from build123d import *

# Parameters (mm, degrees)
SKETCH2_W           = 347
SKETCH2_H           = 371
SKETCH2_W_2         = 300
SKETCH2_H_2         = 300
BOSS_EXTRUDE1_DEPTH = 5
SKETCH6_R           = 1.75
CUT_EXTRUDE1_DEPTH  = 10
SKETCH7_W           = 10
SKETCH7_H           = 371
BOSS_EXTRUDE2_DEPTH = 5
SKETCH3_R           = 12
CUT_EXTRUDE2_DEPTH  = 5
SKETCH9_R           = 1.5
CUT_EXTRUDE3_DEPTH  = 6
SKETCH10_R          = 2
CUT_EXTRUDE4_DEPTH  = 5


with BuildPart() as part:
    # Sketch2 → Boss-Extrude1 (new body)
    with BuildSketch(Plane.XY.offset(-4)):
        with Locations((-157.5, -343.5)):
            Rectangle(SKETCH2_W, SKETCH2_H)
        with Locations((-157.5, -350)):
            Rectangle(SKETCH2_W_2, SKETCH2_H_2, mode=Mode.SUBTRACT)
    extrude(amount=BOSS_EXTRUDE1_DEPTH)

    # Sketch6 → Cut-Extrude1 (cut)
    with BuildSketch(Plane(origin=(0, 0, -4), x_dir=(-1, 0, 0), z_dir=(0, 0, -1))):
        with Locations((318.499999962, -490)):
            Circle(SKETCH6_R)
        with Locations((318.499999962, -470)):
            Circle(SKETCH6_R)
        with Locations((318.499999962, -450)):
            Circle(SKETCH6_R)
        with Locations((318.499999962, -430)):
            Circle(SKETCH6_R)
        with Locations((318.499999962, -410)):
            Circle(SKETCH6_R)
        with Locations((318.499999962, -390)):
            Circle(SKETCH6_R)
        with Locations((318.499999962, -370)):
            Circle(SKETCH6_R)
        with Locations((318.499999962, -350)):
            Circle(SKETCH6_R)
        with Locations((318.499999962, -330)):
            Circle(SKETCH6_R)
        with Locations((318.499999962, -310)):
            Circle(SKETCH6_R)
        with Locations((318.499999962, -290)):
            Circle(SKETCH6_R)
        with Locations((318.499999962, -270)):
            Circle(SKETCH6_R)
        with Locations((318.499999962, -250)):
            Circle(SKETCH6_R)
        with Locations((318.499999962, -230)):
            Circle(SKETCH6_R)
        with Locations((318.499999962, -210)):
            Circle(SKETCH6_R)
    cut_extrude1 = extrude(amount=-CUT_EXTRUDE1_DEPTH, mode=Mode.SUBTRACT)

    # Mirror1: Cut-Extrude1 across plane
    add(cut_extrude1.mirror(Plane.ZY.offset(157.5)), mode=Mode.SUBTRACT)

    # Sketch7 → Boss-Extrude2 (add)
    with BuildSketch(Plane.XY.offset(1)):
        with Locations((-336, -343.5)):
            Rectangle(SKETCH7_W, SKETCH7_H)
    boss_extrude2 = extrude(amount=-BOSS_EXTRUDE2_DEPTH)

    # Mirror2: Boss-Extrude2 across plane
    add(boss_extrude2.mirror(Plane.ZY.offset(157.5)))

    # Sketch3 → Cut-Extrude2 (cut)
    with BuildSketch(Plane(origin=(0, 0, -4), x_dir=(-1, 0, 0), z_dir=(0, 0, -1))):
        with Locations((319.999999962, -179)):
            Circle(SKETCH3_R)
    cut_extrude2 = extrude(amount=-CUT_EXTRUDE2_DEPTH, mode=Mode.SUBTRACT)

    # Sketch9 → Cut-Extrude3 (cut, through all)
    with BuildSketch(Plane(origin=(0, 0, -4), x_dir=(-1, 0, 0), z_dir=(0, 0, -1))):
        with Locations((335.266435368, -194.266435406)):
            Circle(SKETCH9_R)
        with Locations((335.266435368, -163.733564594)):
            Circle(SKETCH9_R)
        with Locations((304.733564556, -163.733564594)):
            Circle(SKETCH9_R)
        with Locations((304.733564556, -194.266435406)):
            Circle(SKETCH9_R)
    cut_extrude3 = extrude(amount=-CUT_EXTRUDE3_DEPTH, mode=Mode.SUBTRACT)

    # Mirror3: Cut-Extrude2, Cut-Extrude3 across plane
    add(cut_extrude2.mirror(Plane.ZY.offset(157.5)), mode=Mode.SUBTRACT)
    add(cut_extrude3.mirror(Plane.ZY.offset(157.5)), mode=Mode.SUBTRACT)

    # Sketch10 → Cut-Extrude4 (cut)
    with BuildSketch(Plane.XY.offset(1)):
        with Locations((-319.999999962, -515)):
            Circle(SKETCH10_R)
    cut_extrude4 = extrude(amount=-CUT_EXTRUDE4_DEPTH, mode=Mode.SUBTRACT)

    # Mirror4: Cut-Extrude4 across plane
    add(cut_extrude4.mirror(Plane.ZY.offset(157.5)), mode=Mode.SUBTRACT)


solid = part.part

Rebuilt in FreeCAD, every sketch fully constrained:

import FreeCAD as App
import Part
import Sketcher

doc = App.newDocument("Part")
body = doc.addObject("PartDesign::Body", "Body")

sketch1 = doc.addObject("Sketcher::SketchObject", "Sketch")
body.addObject(sketch1)
sketch1.AttachmentSupport = (doc.XY_Plane, [""])
sketch1.MapMode = "FlatFace"
sketch1.AttachmentOffset = App.Placement(App.Vector(0, 0, -4), App.Rotation())
sketch1.addGeometry([
    Part.LineSegment(App.Vector(-331, -158, 0), App.Vector(-331, -529, 0)),
    Part.LineSegment(App.Vector(-331, -529, 0), App.Vector(16, -529, 0)),
    Part.LineSegment(App.Vector(16, -529, 0), App.Vector(16, -158, 0)),
    Part.LineSegment(App.Vector(16, -158, 0), App.Vector(-331, -158, 0)),
    Part.LineSegment(App.Vector(-7.5, -500, 0), App.Vector(-307.5, -500, 0)),
    Part.LineSegment(App.Vector(-307.5, -500, 0), App.Vector(-307.5, -200, 0)),
    Part.LineSegment(App.Vector(-307.5, -200, 0), App.Vector(-7.5, -200, 0)),
    Part.LineSegment(App.Vector(-7.5, -200, 0), App.Vector(-7.5, -500, 0)),
], False)
sketch1.addConstraint([
    Sketcher.Constraint("Coincident", 0, 2, 1, 1),
    Sketcher.Constraint("Coincident", 1, 2, 2, 1),
    Sketcher.Constraint("Coincident", 2, 2, 3, 1),
    Sketcher.Constraint("Coincident", 3, 2, 0, 1),
    Sketcher.Constraint("Coincident", 4, 2, 5, 1),
    Sketcher.Constraint("Coincident", 5, 2, 6, 1),
    Sketcher.Constraint("Coincident", 6, 2, 7, 1),
    Sketcher.Constraint("Coincident", 7, 2, 4, 1),
    Sketcher.Constraint("Vertical", 0),
    Sketcher.Constraint("Horizontal", 1),
    Sketcher.Constraint("Vertical", 2),
    Sketcher.Constraint("Horizontal", 3),
    Sketcher.Constraint("Horizontal", 4),
    Sketcher.Constraint("Vertical", 5),
    Sketcher.Constraint("Horizontal", 6),
    Sketcher.Constraint("Vertical", 7),
    Sketcher.Constraint("Equal", 6, 5),
    Sketcher.Constraint("DistanceX", 1, 1, 1, 2, 347.0),
    Sketcher.Constraint("DistanceX", 4, 2, 4, 1, 300.0),
    Sketcher.Constraint("DistanceY", 0, 2, 0, 1, 371.0),
    Sketcher.Constraint("DistanceX", 0, 2, -1, 1, 331.0),
    Sketcher.Constraint("DistanceY", 0, 2, -1, 1, 529.0),
    Sketcher.Constraint("DistanceY", 4, 2, -1, 1, 500.0),
    Sketcher.Constraint("DistanceX", 4, 2, -1, 1, 307.5),
])
pad1 = doc.addObject("PartDesign::Pad", "Pad")
body.addObject(pad1)
pad1.Profile = sketch1
pad1.Length = 5

sketch2 = doc.addObject("Sketcher::SketchObject", "Sketch001")
body.addObject(sketch2)
sketch2.AttachmentSupport = (doc.XY_Plane, [""])
sketch2.MapMode = "FlatFace"
sketch2.AttachmentOffset = App.Placement(App.Vector(0, 0, -4), App.Rotation())
sketch2.addGeometry([
    Part.Circle(App.Vector(-318.5, -490, 0), App.Vector(0, 0, 1), 1.75),
    Part.Circle(App.Vector(-318.5, -470, 0), App.Vector(0, 0, 1), 1.75),
    Part.Circle(App.Vector(-318.5, -450, 0), App.Vector(0, 0, 1), 1.75),
    Part.Circle(App.Vector(-318.5, -430, 0), App.Vector(0, 0, 1), 1.75),
    Part.Circle(App.Vector(-318.5, -410, 0), App.Vector(0, 0, 1), 1.75),
    Part.Circle(App.Vector(-318.5, -390, 0), App.Vector(0, 0, 1), 1.75),
    Part.Circle(App.Vector(-318.5, -370, 0), App.Vector(0, 0, 1), 1.75),
    Part.Circle(App.Vector(-318.5, -350, 0), App.Vector(0, 0, 1), 1.75),
    Part.Circle(App.Vector(-318.5, -330, 0), App.Vector(0, 0, 1), 1.75),
    Part.Circle(App.Vector(-318.5, -310, 0), App.Vector(0, 0, 1), 1.75),
    Part.Circle(App.Vector(-318.5, -290, 0), App.Vector(0, 0, 1), 1.75),
    Part.Circle(App.Vector(-318.5, -270, 0), App.Vector(0, 0, 1), 1.75),
    Part.Circle(App.Vector(-318.5, -250, 0), App.Vector(0, 0, 1), 1.75),
    Part.Circle(App.Vector(-318.5, -230, 0), App.Vector(0, 0, 1), 1.75),
    Part.Circle(App.Vector(-318.5, -210, 0), App.Vector(0, 0, 1), 1.75),
], False)
sketch2.addConstraint([
    Sketcher.Constraint("Equal", 0, 1),
    Sketcher.Constraint("Equal", 1, 2),
    Sketcher.Constraint("Equal", 2, 3),
    Sketcher.Constraint("Equal", 3, 4),
    Sketcher.Constraint("Equal", 4, 5),
    Sketcher.Constraint("Equal", 5, 6),
    Sketcher.Constraint("Equal", 6, 7),
    Sketcher.Constraint("Equal", 7, 8),
    Sketcher.Constraint("Equal", 8, 9),
    Sketcher.Constraint("Equal", 9, 10),
    Sketcher.Constraint("Equal", 10, 11),
    Sketcher.Constraint("Equal", 11, 12),
    Sketcher.Constraint("Equal", 12, 13),
    Sketcher.Constraint("Equal", 13, 14),
    Sketcher.Constraint("Vertical", 0, 3, 1, 3),
    Sketcher.Constraint("Vertical", 1, 3, 2, 3),
    Sketcher.Constraint("Vertical", 2, 3, 3, 3),
    Sketcher.Constraint("Vertical", 3, 3, 4, 3),
    Sketcher.Constraint("Vertical", 4, 3, 5, 3),
    Sketcher.Constraint("Vertical", 5, 3, 6, 3),
    Sketcher.Constraint("Vertical", 6, 3, 7, 3),
    Sketcher.Constraint("Vertical", 7, 3, 8, 3),
    Sketcher.Constraint("Vertical", 8, 3, 9, 3),
    Sketcher.Constraint("Vertical", 9, 3, 10, 3),
    Sketcher.Constraint("Vertical", 10, 3, 11, 3),
    Sketcher.Constraint("Vertical", 11, 3, 12, 3),
    Sketcher.Constraint("Vertical", 12, 3, 13, 3),
    Sketcher.Constraint("Vertical", 13, 3, 14, 3),
    Sketcher.Constraint("Diameter", 0, 3.5),
    Sketcher.Constraint("DistanceY", 0, 3, -1, 1, 490.0),
    Sketcher.Constraint("DistanceY", 1, 3, -1, 1, 470.0),
    Sketcher.Constraint("DistanceY", 2, 3, -1, 1, 450.0),
    Sketcher.Constraint("DistanceY", 3, 3, -1, 1, 430.0),
    Sketcher.Constraint("DistanceY", 4, 3, -1, 1, 410.0),
    Sketcher.Constraint("DistanceY", 5, 3, -1, 1, 390.0),
    Sketcher.Constraint("DistanceY", 6, 3, -1, 1, 370.0),
    Sketcher.Constraint("DistanceY", 7, 3, -1, 1, 350.0),
    Sketcher.Constraint("DistanceY", 8, 3, -1, 1, 330.0),
    Sketcher.Constraint("DistanceY", 9, 3, -1, 1, 310.0),
    Sketcher.Constraint("DistanceY", 10, 3, -1, 1, 290.0),
    Sketcher.Constraint("DistanceY", 11, 3, -1, 1, 270.0),
    Sketcher.Constraint("DistanceY", 12, 3, -1, 1, 250.0),
    Sketcher.Constraint("DistanceY", 13, 3, -1, 1, 230.0),
    Sketcher.Constraint("DistanceY", 14, 3, -1, 1, 210.0),
    Sketcher.Constraint("DistanceX", 0, 3, -1, 1, 318.5),
])
pocket1 = doc.addObject("PartDesign::Pocket", "Pocket")
body.addObject(pocket1)
pocket1.Profile = sketch2
pocket1.Length = 10
pocket1.Reversed = True
doc.recompute()

datumplane = doc.addObject("PartDesign::Plane", "DatumPlane")
body.addObject(datumplane)
datumplane.AttachmentSupport = (doc.YZ_Plane, [""])
datumplane.MapMode = "FlatFace"
datumplane.AttachmentOffset = App.Placement(App.Vector(0, 0, -157.5), App.Rotation())
mirrored = doc.addObject("PartDesign::Mirrored", "Mirrored")
body.addObject(mirrored)
mirrored.Originals = [pocket1]
mirrored.MirrorPlane = (datumplane, [""])
body.Tip = mirrored

sketch3 = doc.addObject("Sketcher::SketchObject", "Sketch002")
body.addObject(sketch3)
sketch3.AttachmentSupport = (doc.XY_Plane, [""])
sketch3.MapMode = "FlatFace"
sketch3.AttachmentOffset = App.Placement(App.Vector(0, 0, 1), App.Rotation())
sketch3.addGeometry([
    Part.LineSegment(App.Vector(-341, -158, 0), App.Vector(-341, -529, 0)),
    Part.LineSegment(App.Vector(-341, -529, 0), App.Vector(-331, -529, 0)),
    Part.LineSegment(App.Vector(-331, -529, 0), App.Vector(-331, -158, 0)),
    Part.LineSegment(App.Vector(-331, -158, 0), App.Vector(-341, -158, 0)),
], False)
sketch3.addConstraint([
    Sketcher.Constraint("Coincident", 0, 2, 1, 1),
    Sketcher.Constraint("Coincident", 1, 2, 2, 1),
    Sketcher.Constraint("Coincident", 2, 2, 3, 1),
    Sketcher.Constraint("Coincident", 3, 2, 0, 1),
    Sketcher.Constraint("Vertical", 0),
    Sketcher.Constraint("Horizontal", 1),
    Sketcher.Constraint("Vertical", 2),
    Sketcher.Constraint("Horizontal", 3),
    Sketcher.Constraint("DistanceX", 1, 1, 1, 2, 10.0),
    Sketcher.Constraint("DistanceY", 0, 2, 0, 1, 371.0),
    Sketcher.Constraint("DistanceX", 0, 2, -1, 1, 341.0),
    Sketcher.Constraint("DistanceY", 0, 2, -1, 1, 529.0),
])
pad2 = doc.addObject("PartDesign::Pad", "Pad001")
body.addObject(pad2)
pad2.Profile = sketch3
pad2.Length = 5
pad2.Reversed = True
doc.recompute()

datumplane2 = doc.addObject("PartDesign::Plane", "DatumPlane001")
body.addObject(datumplane2)
datumplane2.AttachmentSupport = (doc.YZ_Plane, [""])
datumplane2.MapMode = "FlatFace"
datumplane2.AttachmentOffset = App.Placement(App.Vector(0, 0, -157.5), App.Rotation())
mirrored2 = doc.addObject("PartDesign::Mirrored", "Mirrored001")
body.addObject(mirrored2)
mirrored2.Originals = [pad2]
mirrored2.MirrorPlane = (datumplane2, [""])
body.Tip = mirrored2

sketch4 = doc.addObject("Sketcher::SketchObject", "Sketch003")
body.addObject(sketch4)
sketch4.AttachmentSupport = (doc.XY_Plane, [""])
sketch4.MapMode = "FlatFace"
sketch4.AttachmentOffset = App.Placement(App.Vector(0, 0, -4), App.Rotation())
sketch4.addGeometry(Part.Circle(App.Vector(-320, -179, 0), App.Vector(0, 0, 1), 12), False)
sketch4.addConstraint([
    Sketcher.Constraint("Diameter", 0, 24.0),
    Sketcher.Constraint("DistanceX", 0, 3, -1, 1, 320.0),
    Sketcher.Constraint("DistanceY", 0, 3, -1, 1, 179.0),
])
pocket2 = doc.addObject("PartDesign::Pocket", "Pocket001")
body.addObject(pocket2)
pocket2.Profile = sketch4
pocket2.Length = 5
pocket2.Reversed = True

sketch5 = doc.addObject("Sketcher::SketchObject", "Sketch004")
body.addObject(sketch5)
sketch5.AttachmentSupport = (doc.XY_Plane, [""])
sketch5.MapMode = "FlatFace"
sketch5.AttachmentOffset = App.Placement(App.Vector(0, 0, -4), App.Rotation())
sketch5.addGeometry([
    Part.Circle(App.Vector(-335.266435, -194.266435, 0), App.Vector(0, 0, 1), 1.5),
    Part.Circle(App.Vector(-335.266435, -163.733565, 0), App.Vector(0, 0, 1), 1.5),
    Part.Circle(App.Vector(-304.733565, -163.733565, 0), App.Vector(0, 0, 1), 1.5),
    Part.Circle(App.Vector(-304.733565, -194.266435, 0), App.Vector(0, 0, 1), 1.5),
], False)
sketch5.addConstraint([
    Sketcher.Constraint("Equal", 0, 1),
    Sketcher.Constraint("Equal", 1, 2),
    Sketcher.Constraint("Equal", 2, 3),
    Sketcher.Constraint("Horizontal", 1, 3, 2, 3),
    Sketcher.Constraint("Horizontal", 0, 3, 3, 3),
    Sketcher.Constraint("Vertical", 0, 3, 1, 3),
    Sketcher.Constraint("Vertical", 2, 3, 3, 3),
    Sketcher.Constraint("Diameter", 0, 3.0),
    Sketcher.Constraint("DistanceY", 0, 3, 1, 3, 30.532871),
    Sketcher.Constraint("DistanceX", 1, 3, 2, 3, 30.532871),
    Sketcher.Constraint("DistanceX", 0, 3, -1, 1, 335.266435),
    Sketcher.Constraint("DistanceY", 0, 3, -1, 1, 194.266435),
])
pocket3 = doc.addObject("PartDesign::Pocket", "Pocket002")
body.addObject(pocket3)
pocket3.Profile = sketch5
pocket3.Type = "ThroughAll"
pocket3.Reversed = True
doc.recompute()

datumplane3 = doc.addObject("PartDesign::Plane", "DatumPlane002")
body.addObject(datumplane3)
datumplane3.AttachmentSupport = (doc.YZ_Plane, [""])
datumplane3.MapMode = "FlatFace"
datumplane3.AttachmentOffset = App.Placement(App.Vector(0, 0, -157.5), App.Rotation())
mirrored3 = doc.addObject("PartDesign::Mirrored", "Mirrored002")
body.addObject(mirrored3)
mirrored3.Originals = [pocket2, pocket3]
mirrored3.MirrorPlane = (datumplane3, [""])
body.Tip = mirrored3

sketch6 = doc.addObject("Sketcher::SketchObject", "Sketch005")
body.addObject(sketch6)
sketch6.AttachmentSupport = (doc.XY_Plane, [""])
sketch6.MapMode = "FlatFace"
sketch6.AttachmentOffset = App.Placement(App.Vector(0, 0, 1), App.Rotation())
sketch6.addGeometry(Part.Circle(App.Vector(-320, -515, 0), App.Vector(0, 0, 1), 2), False)
sketch6.addConstraint([
    Sketcher.Constraint("Diameter", 0, 4.0),
    Sketcher.Constraint("DistanceX", 0, 3, -1, 1, 320.0),
    Sketcher.Constraint("DistanceY", 0, 3, -1, 1, 515.0),
])
pocket4 = doc.addObject("PartDesign::Pocket", "Pocket003")
body.addObject(pocket4)
pocket4.Profile = sketch6
pocket4.Length = 5
doc.recompute()

datumplane4 = doc.addObject("PartDesign::Plane", "DatumPlane003")
body.addObject(datumplane4)
datumplane4.AttachmentSupport = (doc.YZ_Plane, [""])
datumplane4.MapMode = "FlatFace"
datumplane4.AttachmentOffset = App.Placement(App.Vector(0, 0, -157.5), App.Rotation())
mirrored4 = doc.addObject("PartDesign::Mirrored", "Mirrored003")
body.addObject(mirrored4)
mirrored4.Originals = [pocket4]
mirrored4.MirrorPlane = (datumplane4, [""])
body.Tip = mirrored4

doc.recompute()
